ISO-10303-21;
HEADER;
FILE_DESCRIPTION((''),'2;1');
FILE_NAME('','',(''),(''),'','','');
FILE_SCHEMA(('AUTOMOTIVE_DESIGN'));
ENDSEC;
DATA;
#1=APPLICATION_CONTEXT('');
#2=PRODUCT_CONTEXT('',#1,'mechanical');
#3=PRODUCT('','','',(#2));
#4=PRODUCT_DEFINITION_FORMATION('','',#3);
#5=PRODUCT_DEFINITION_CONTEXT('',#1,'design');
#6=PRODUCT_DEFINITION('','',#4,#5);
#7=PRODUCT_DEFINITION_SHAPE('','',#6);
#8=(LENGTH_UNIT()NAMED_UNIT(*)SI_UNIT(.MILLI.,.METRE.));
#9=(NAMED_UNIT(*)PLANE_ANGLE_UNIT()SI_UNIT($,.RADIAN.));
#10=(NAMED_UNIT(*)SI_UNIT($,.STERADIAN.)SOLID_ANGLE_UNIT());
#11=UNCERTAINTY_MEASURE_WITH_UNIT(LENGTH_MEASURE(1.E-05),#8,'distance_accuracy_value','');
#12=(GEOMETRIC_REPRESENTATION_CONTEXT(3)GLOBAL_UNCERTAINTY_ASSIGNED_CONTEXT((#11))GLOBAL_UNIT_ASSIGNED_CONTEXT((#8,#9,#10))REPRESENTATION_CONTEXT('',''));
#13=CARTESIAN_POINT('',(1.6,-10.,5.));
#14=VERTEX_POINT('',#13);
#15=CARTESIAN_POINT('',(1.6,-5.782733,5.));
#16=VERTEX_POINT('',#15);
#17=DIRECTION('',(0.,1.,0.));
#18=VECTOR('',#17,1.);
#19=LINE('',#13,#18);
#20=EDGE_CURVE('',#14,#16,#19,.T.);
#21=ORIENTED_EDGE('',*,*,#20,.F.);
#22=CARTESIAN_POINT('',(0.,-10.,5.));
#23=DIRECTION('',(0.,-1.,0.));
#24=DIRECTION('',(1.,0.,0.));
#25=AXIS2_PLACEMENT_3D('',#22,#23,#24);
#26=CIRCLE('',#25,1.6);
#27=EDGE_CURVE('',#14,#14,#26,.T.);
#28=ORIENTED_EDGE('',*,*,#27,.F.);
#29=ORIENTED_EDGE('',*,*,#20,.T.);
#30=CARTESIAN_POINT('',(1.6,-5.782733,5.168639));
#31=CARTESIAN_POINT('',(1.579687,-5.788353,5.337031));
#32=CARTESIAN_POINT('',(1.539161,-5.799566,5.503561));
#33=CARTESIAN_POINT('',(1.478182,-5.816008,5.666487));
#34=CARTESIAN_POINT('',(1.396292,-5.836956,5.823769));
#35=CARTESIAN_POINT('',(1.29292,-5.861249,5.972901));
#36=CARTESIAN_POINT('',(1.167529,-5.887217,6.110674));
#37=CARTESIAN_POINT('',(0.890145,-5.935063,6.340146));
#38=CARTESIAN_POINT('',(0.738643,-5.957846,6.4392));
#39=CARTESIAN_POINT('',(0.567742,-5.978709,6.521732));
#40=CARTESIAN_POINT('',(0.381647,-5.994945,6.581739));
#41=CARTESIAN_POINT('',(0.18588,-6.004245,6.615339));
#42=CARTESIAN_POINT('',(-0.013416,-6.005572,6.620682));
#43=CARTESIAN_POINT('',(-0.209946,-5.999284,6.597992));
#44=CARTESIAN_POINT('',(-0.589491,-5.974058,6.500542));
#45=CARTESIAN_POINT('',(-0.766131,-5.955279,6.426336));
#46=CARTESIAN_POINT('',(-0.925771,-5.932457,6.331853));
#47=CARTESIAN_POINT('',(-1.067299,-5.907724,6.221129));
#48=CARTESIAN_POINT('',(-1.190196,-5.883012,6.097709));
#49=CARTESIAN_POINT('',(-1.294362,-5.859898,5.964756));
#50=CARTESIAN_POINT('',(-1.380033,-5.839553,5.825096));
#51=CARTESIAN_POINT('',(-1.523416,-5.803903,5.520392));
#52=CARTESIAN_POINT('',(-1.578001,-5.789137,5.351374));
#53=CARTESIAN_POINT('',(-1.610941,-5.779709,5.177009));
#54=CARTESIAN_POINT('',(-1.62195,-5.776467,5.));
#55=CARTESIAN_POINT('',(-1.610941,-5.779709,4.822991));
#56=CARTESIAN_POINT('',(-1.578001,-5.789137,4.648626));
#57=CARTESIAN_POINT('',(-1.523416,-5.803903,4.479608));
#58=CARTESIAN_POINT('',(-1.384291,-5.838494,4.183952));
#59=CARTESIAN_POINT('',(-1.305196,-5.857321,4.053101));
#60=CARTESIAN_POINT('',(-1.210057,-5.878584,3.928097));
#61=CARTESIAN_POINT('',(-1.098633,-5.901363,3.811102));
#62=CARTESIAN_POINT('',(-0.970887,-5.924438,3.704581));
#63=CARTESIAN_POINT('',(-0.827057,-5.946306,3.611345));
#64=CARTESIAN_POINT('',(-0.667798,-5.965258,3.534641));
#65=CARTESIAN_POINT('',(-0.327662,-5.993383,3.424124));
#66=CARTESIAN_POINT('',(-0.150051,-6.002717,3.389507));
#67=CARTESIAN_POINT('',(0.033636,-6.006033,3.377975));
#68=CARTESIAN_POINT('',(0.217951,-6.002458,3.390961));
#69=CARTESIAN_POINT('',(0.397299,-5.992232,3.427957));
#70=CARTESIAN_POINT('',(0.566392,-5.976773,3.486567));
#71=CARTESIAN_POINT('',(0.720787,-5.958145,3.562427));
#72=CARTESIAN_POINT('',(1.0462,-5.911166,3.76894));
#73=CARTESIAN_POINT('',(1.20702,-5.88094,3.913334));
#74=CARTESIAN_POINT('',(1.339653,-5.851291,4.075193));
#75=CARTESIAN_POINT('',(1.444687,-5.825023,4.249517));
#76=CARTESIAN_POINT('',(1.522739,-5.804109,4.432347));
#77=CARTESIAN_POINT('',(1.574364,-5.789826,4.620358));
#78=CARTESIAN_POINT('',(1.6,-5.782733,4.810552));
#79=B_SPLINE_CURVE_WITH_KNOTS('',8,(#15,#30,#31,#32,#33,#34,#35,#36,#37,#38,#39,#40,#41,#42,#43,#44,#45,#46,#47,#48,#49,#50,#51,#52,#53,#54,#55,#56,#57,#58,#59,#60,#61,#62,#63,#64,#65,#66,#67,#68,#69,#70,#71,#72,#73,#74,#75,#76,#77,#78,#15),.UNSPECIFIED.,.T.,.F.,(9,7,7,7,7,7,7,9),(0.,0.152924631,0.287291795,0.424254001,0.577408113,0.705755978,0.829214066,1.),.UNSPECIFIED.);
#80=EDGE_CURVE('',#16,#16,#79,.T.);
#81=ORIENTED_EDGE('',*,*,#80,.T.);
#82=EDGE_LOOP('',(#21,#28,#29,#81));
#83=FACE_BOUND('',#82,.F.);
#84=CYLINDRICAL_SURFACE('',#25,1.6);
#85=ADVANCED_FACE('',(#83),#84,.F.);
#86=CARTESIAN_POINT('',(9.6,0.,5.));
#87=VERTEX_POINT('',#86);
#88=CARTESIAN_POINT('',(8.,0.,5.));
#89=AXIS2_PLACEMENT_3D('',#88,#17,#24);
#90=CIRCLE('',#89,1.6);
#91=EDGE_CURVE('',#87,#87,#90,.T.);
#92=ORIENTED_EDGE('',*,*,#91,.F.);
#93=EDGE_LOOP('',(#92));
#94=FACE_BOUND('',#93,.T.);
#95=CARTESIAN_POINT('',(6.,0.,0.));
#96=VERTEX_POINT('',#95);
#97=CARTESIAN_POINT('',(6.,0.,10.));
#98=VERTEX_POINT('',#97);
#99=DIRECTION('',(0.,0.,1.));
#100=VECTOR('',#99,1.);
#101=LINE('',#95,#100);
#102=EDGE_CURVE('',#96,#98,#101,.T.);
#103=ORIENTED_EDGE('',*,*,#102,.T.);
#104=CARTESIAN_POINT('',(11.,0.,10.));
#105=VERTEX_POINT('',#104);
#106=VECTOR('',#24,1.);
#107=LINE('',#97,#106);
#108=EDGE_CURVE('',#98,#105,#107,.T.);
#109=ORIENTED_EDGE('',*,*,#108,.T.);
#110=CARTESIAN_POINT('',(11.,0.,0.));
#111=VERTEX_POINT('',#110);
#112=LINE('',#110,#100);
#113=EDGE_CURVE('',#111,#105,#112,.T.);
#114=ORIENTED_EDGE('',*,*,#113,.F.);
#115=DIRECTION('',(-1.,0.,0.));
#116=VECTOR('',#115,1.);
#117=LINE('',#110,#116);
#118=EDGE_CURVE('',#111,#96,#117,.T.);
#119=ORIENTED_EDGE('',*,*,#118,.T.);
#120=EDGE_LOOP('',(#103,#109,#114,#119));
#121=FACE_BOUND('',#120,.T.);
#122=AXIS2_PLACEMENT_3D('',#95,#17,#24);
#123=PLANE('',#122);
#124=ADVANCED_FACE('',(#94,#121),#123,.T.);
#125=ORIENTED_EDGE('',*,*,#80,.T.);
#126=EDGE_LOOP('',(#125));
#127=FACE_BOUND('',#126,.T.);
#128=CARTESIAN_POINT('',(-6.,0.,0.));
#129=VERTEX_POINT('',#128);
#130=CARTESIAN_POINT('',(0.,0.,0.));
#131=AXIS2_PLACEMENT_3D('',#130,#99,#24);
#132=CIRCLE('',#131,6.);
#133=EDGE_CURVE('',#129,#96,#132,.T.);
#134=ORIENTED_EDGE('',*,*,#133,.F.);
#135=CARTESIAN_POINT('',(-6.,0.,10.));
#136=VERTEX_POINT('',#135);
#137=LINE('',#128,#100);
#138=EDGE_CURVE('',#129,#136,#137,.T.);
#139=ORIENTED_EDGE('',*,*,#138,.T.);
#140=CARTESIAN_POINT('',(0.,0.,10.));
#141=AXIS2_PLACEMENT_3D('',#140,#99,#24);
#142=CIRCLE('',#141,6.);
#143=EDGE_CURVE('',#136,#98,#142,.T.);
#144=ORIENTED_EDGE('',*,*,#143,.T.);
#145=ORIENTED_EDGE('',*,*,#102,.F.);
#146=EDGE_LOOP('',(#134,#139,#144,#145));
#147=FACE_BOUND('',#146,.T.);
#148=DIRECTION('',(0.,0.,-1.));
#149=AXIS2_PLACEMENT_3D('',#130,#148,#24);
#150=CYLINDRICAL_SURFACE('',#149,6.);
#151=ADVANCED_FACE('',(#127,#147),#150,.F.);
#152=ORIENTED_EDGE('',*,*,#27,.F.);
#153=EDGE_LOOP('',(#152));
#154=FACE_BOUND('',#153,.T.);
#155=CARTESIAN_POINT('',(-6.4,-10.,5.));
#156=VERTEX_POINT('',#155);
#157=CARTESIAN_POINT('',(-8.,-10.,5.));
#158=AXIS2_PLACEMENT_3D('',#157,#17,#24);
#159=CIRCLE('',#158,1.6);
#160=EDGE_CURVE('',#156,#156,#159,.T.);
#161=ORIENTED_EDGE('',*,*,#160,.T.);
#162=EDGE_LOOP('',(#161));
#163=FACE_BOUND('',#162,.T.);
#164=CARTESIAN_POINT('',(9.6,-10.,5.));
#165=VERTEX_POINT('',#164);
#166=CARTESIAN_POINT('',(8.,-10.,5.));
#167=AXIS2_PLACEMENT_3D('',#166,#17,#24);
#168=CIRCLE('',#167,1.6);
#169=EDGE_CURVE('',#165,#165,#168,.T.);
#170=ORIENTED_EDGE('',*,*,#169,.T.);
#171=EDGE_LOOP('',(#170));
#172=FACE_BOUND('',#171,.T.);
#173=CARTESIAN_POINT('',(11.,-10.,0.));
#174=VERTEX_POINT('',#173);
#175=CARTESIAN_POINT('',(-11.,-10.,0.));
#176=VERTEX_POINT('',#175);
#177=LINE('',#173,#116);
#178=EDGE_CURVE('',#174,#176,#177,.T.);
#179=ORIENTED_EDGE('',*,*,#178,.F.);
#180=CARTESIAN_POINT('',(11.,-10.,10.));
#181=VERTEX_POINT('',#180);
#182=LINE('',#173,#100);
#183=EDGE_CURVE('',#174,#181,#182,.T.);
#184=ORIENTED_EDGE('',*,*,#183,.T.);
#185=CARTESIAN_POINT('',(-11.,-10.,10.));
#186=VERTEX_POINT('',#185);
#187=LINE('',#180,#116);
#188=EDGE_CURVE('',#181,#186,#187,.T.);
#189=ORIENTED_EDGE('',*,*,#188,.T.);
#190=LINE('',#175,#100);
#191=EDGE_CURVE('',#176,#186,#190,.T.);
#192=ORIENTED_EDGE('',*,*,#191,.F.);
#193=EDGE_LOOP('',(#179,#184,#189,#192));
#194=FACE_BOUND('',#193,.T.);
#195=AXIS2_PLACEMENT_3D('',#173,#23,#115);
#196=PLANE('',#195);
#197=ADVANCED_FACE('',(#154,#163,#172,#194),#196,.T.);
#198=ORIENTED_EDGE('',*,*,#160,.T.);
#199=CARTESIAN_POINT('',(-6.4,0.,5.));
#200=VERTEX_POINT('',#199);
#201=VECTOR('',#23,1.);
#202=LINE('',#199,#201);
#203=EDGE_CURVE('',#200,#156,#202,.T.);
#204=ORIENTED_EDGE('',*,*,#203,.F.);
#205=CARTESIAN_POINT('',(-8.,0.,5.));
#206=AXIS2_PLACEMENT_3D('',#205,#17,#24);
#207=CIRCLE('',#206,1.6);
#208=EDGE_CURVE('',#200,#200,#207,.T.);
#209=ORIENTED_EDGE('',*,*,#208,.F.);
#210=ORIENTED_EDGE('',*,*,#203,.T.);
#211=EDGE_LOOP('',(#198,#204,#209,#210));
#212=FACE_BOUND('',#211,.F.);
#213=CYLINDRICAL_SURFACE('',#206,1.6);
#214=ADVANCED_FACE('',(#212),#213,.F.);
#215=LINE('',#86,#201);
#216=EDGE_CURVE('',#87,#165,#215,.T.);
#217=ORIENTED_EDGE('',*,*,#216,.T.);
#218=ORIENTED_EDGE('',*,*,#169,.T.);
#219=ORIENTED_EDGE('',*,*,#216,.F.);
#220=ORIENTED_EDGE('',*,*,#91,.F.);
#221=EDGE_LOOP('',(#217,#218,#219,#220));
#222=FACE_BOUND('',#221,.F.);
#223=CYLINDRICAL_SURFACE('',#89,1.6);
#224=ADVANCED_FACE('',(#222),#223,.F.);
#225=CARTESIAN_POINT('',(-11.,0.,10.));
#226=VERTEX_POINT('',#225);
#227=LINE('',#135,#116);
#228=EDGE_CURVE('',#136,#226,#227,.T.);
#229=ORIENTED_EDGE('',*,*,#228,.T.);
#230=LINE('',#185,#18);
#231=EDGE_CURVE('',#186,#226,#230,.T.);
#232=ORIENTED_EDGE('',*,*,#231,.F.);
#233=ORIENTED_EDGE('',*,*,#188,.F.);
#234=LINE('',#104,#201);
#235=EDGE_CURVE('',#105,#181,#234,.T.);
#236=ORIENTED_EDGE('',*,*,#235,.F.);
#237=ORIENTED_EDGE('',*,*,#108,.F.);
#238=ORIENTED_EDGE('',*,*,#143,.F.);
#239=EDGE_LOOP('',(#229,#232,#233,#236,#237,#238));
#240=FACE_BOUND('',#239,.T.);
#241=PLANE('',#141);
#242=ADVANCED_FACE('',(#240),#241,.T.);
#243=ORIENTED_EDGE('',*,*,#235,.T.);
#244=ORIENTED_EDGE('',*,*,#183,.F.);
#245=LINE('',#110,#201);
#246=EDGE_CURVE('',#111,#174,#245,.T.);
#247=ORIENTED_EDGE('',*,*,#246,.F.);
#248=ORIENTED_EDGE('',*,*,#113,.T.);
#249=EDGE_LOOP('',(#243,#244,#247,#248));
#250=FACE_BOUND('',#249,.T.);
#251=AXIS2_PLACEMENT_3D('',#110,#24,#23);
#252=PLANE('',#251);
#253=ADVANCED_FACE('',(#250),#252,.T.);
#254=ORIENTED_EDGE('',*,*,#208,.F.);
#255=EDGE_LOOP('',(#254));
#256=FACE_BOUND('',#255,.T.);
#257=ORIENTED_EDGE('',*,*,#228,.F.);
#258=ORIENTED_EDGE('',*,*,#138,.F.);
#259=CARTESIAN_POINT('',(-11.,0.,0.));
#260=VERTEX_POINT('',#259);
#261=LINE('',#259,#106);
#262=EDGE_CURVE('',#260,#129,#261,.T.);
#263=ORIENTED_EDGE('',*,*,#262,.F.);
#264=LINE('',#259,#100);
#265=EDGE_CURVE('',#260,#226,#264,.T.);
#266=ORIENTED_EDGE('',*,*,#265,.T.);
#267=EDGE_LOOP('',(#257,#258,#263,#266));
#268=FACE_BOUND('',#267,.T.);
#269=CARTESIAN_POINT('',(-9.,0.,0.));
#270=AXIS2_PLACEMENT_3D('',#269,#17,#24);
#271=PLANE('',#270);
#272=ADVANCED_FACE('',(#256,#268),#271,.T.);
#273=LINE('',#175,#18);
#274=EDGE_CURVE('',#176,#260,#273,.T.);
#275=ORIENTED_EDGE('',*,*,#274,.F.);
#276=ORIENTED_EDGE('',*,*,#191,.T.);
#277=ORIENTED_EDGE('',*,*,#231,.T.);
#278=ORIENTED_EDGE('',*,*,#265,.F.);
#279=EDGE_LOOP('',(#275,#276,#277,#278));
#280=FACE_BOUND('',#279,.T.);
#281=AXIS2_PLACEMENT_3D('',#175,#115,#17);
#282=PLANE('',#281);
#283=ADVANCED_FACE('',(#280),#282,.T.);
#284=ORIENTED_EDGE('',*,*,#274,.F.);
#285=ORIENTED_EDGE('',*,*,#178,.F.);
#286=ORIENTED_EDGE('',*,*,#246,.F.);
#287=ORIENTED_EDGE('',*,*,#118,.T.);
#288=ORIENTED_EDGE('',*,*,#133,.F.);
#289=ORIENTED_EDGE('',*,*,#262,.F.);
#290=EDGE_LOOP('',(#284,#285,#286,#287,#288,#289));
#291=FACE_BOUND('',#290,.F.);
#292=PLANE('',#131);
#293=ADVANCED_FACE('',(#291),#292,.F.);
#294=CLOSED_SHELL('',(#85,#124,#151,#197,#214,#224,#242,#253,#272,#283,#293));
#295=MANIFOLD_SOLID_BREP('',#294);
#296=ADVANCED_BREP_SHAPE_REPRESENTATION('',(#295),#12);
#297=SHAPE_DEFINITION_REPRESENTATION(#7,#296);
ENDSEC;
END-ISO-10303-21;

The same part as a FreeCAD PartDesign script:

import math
import FreeCAD as App
import Part
import Sketcher

doc = App.newDocument("Part")
body = doc.addObject("PartDesign::Body", "Body")

# Sketch on XY plane
sketch1 = doc.addObject("Sketcher::SketchObject", "Sketch")
body.addObject(sketch1)
sketch1.AttachmentSupport = (doc.XY_Plane, [""])
sketch1.MapMode = "FlatFace"
sketch1.addGeometry([
    Part.ArcOfCircle(Part.Circle(App.Vector(0, 0, 0), App.Vector(0, 0, 1), 6), math.radians(180), math.radians(360)),  # 0
    Part.LineSegment(App.Vector(-6, 0, 0), App.Vector(-11, 0, 0)),  # 1
    Part.LineSegment(App.Vector(-11, 0, 0), App.Vector(-11, -10, 0)),  # 2
    Part.LineSegment(App.Vector(-11, -10, 0), App.Vector(11, -10, 0)),  # 3
    Part.LineSegment(App.Vector(11, -10, 0), App.Vector(11, 0, 0)),  # 4
    Part.LineSegment(App.Vector(11, 0, 0), App.Vector(6, 0, 0)),  # 5
], False)
sketch1.addConstraint([
    Sketcher.Constraint("Coincident", 0, 1, 1, 1),
    Sketcher.Constraint("Coincident", 1, 2, 2, 1),
    Sketcher.Constraint("Coincident", 2, 2, 3, 1),
    Sketcher.Constraint("Coincident", 3, 2, 4, 1),
    Sketcher.Constraint("Coincident", 4, 2, 5, 1),
    Sketcher.Constraint("Coincident", 5, 2, 0, 2),
    Sketcher.Constraint("Horizontal", 1),
    Sketcher.Constraint("Vertical", 2),
    Sketcher.Constraint("Horizontal", 3),
    Sketcher.Constraint("Vertical", 4),
    Sketcher.Constraint("Horizontal", 5),
    Sketcher.Constraint("Coincident", 0, 3, -1, 1),
    Sketcher.Constraint("Symmetric", 1, 2, 4, 2, -1, 1),
    Sketcher.Constraint("PointOnObject", 0, 1, -1),
    Sketcher.Constraint("Radius", 0, 6.0),
    Sketcher.Constraint("DistanceY", 2, 2, 2, 1, 10.0),
    Sketcher.Constraint("DistanceX", 1, 2, -1, 1, 11.0),
])
pad1 = doc.addObject("PartDesign::Pad", "Pad")
body.addObject(pad1)
pad1.Profile = sketch1
pad1.Length = 10

# Sketch on XZ plane
sketch2 = doc.addObject("Sketcher::SketchObject", "Sketch001")
body.addObject(sketch2)
sketch2.AttachmentSupport = (doc.XZ_Plane, [""])
sketch2.MapMode = "FlatFace"
sketch2.addGeometry([
    Part.Circle(App.Vector(8, 5, 0), App.Vector(0, 0, 1), 1.6),
    Part.Circle(App.Vector(-8, 5, 0), App.Vector(0, 0, 1), 1.6),
], False)
sketch2.addConstraint([
    Sketcher.Constraint("Equal", 0, 1),
    Sketcher.Constraint("Symmetric", 0, 3, 1, 3, -2),
    Sketcher.Constraint("Diameter", 0, 3.2),
    Sketcher.Constraint("DistanceY", -1, 1, 0, 3, 5.0),
    Sketcher.Constraint("DistanceX", -1, 1, 0, 3, 8.0),
])
pocket1 = doc.addObject("PartDesign::Pocket", "Pocket")
body.addObject(pocket1)
pocket1.Profile = sketch2
pocket1.Length = 10
pocket1.Reversed = True

# Sketch on XZ plane
sketch3 = doc.addObject("Sketcher::SketchObject", "Sketch002")
body.addObject(sketch3)
sketch3.AttachmentSupport = (doc.XZ_Plane, [""])
sketch3.MapMode = "FlatFace"
sketch3.AttachmentOffset = App.Placement(App.Vector(0, 0, 10), App.Rotation())
sketch3.addGeometry(Part.Circle(App.Vector(0, 5, 0), App.Vector(0, 0, 1), 1.6), False)
sketch3.addConstraint([
    Sketcher.Constraint("PointOnObject", 0, 3, -2),
    Sketcher.Constraint("Diameter", 0, 3.2),
    Sketcher.Constraint("DistanceY", -1, 1, 0, 3, 5.0),
])
pocket2 = doc.addObject("PartDesign::Pocket", "Pocket001")
body.addObject(pocket2)
pocket2.Profile = sketch3
pocket2.Length = 10

doc.recompute()
